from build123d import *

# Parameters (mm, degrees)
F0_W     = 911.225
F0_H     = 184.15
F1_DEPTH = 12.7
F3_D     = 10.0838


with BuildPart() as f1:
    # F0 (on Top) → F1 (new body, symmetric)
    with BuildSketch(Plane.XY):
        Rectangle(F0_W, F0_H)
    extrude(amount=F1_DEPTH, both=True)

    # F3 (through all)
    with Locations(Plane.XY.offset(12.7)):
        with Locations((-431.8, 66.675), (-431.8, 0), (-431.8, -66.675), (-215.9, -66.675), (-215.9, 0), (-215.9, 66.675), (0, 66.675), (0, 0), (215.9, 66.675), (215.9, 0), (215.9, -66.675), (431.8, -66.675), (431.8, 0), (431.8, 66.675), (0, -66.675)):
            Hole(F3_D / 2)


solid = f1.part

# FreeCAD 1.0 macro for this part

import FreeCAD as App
import Part
import Sketcher
from FreeCAD import Vector
Q = App.Units.Quantity


def add_polygon(sketch, points):
    """Adds a closed chain of lines whose ends are joined by coincident constraints."""
    first, n = sketch.GeometryCount, len(points)
    for a, b in zip(points, points[1:] + points[:1]):
        sketch.addGeometry(Part.LineSegment(App.Vector(*a, 0), App.Vector(*b, 0)), False)
    for i in range(n):
        sketch.addConstraint(Sketcher.Constraint("Coincident", first + i, 2, first + (i + 1) % n, 1))

doc = App.newDocument("Part")
body = doc.addObject("PartDesign::Body", "Body")

# Sketch on XY plane
sketch1 = doc.addObject("Sketcher::SketchObject", "Sketch")
body.addObject(sketch1)
sketch1.AttachmentSupport = (doc.XY_Plane, [""])
sketch1.MapMode = "FlatFace"
add_polygon(sketch1, [(-456, 92), (-456, -92), (456, -92), (456, 92)])  # lines 0-3
sketch1.addConstraint(Sketcher.Constraint("Vertical", 0))
sketch1.addConstraint(Sketcher.Constraint("Horizontal", 1))
sketch1.addConstraint(Sketcher.Constraint("Vertical", 2))
sketch1.addConstraint(Sketcher.Constraint("Horizontal", 3))
sketch1.addConstraint(Sketcher.Constraint("Symmetric", 0, 2, 2, 2, -1, 1))
sketch1.addConstraint(Sketcher.Constraint("DistanceY", 0, 2, 0, 1, Q("7.25 in")))
sketch1.addConstraint(Sketcher.Constraint("DistanceX", 1, 1, 1, 2, Q("35.875 in")))
pad1 = doc.addObject("PartDesign::Pad", "Pad")
body.addObject(pad1)
pad1.Profile = sketch1
pad1.Length = Q("1 in")
pad1.Midplane = True

# Sketch on XY plane
sketch2 = doc.addObject("Sketcher::SketchObject", "Sketch001")
body.addObject(sketch2)
sketch2.AttachmentSupport = (doc.XY_Plane, [""])
sketch2.MapMode = "FlatFace"
sketch2.AttachmentOffset = App.Placement(Vector(0, 0, 0.5 * 25.4), App.Rotation())
sketch2.addGeometry(Part.Circle(Vector(-432, 67, 0), Vector(0, 0, 1), 5), False)
sketch2.addGeometry(Part.Circle(Vector(-432, 0, 0), Vector(0, 0, 1), 5), False)
sketch2.addGeometry(Part.Circle(Vector(-432, -67, 0), Vector(0, 0, 1), 5), False)
sketch2.addGeometry(Part.Circle(Vector(-216, -67, 0), Vector(0, 0, 1), 5), False)
sketch2.addGeometry(Part.Circle(Vector(-216, 0, 0), Vector(0, 0, 1), 5), False)
sketch2.addGeometry(Part.Circle(Vector(-216, 67, 0), Vector(0, 0, 1), 5), False)
sketch2.addGeometry(Part.Circle(Vector(0, 67, 0), Vector(0, 0, 1), 5), False)
sketch2.addGeometry(Part.Circle(Vector(0, 0, 0), Vector(0, 0, 1), 5), False)
sketch2.addGeometry(Part.Circle(Vector(216, 67, 0), Vector(0, 0, 1), 5), False)
sketch2.addGeometry(Part.Circle(Vector(216, 0, 0), Vector(0, 0, 1), 5), False)
sketch2.addGeometry(Part.Circle(Vector(216, -67, 0), Vector(0, 0, 1), 5), False)
sketch2.addGeometry(Part.Circle(Vector(432, -67, 0), Vector(0, 0, 1), 5), False)
sketch2.addGeometry(Part.Circle(Vector(432, 0, 0), Vector(0, 0, 1), 5), False)
sketch2.addGeometry(Part.Circle(Vector(432, 67, 0), Vector(0, 0, 1), 5), False)
sketch2.addGeometry(Part.Circle(Vector(0, -67, 0), Vector(0, 0, 1), 5), False)
sketch2.addConstraint(Sketcher.Constraint("Coincident", 7, 3, -1, 1))
sketch2.addConstraint(Sketcher.Constraint("Equal", 0, 1))
sketch2.addConstraint(Sketcher.Constraint("Equal", 1, 2))
sketch2.addConstraint(Sketcher.Constraint("Equal", 2, 3))
sketch2.addConstraint(Sketcher.Constraint("Equal", 3, 4))
sketch2.addConstraint(Sketcher.Constraint("Equal", 4, 5))
sketch2.addConstraint(Sketcher.Constraint("Equal", 5, 6))
sketch2.addConstraint(Sketcher.Constraint("Equal", 6, 7))
sketch2.addConstraint(Sketcher.Constraint("Equal", 7, 8))
sketch2.addConstraint(Sketcher.Constraint("Equal", 8, 9))
sketch2.addConstraint(Sketcher.Constraint("Equal", 9, 10))
sketch2.addConstraint(Sketcher.Constraint("Equal", 10, 11))
sketch2.addConstraint(Sketcher.Constraint("Equal", 11, 12))
sketch2.addConstraint(Sketcher.Constraint("Equal", 12, 13))
sketch2.addConstraint(Sketcher.Constraint("Equal", 13, 14))
sketch2.addConstraint(Sketcher.Constraint("Symmetric", 3, 3, 8, 3, -1, 1))
sketch2.addConstraint(Sketcher.Constraint("Symmetric", 4, 3, 9, 3, -1, 1))
sketch2.addConstraint(Sketcher.Constraint("Symmetric", 5, 3, 10, 3, -1, 1))
sketch2.addConstraint(Sketcher.Constraint("Symmetric", 0, 3, 11, 3, -1, 1))
sketch2.addConstraint(Sketcher.Constraint("Symmetric", 1, 3, 12, 3, -1, 1))
sketch2.addConstraint(Sketcher.Constraint("Symmetric", 2, 3, 13, 3, -1, 1))
sketch2.addConstraint(Sketcher.Constraint("Symmetric", 6, 3, 14, 3, -1, 1))
sketch2.addConstraint(Sketcher.Constraint("Symmetric", 5, 3, 8, 3, -2))
sketch2.addConstraint(Sketcher.Constraint("Symmetric", 2, 3, 11, 3, -2))
sketch2.addConstraint(Sketcher.Constraint("PointOnObject", 1, 3, -1))
sketch2.addConstraint(Sketcher.Constraint("PointOnObject", 4, 3, -1))
sketch2.addConstraint(Sketcher.Constraint("PointOnObject", 6, 3, -2))
sketch2.addConstraint(Sketcher.Constraint("Horizontal", 2, 3, 3, 3))
sketch2.addConstraint(Sketcher.Constraint("Horizontal", 5, 3, 6, 3))
sketch2.addConstraint(Sketcher.Constraint("Vertical", 0, 3, 1, 3))
sketch2.addConstraint(Sketcher.Constraint("Vertical", 3, 3, 4, 3))
sketch2.addConstraint(Sketcher.Constraint("Diameter", 0, Q("0.397 in")))
sketch2.addConstraint(Sketcher.Constraint("DistanceX", 0, 3, -1, 1, Q("17 in")))
sketch2.addConstraint(Sketcher.Constraint("DistanceX", 5, 3, 8, 3, Q("17 in")))
sketch2.addConstraint(Sketcher.Constraint("DistanceY", 2, 3, 0, 3, Q("5.25 in")))
doc.recompute()
hole = doc.addObject("PartDesign::Hole", "Hole")
body.addObject(hole)
hole.Profile = sketch2
hole.ThreadType = "None"
hole.Diameter = Q("0.397 in")
hole.DepthType = "ThroughAll"

doc.recompute()
